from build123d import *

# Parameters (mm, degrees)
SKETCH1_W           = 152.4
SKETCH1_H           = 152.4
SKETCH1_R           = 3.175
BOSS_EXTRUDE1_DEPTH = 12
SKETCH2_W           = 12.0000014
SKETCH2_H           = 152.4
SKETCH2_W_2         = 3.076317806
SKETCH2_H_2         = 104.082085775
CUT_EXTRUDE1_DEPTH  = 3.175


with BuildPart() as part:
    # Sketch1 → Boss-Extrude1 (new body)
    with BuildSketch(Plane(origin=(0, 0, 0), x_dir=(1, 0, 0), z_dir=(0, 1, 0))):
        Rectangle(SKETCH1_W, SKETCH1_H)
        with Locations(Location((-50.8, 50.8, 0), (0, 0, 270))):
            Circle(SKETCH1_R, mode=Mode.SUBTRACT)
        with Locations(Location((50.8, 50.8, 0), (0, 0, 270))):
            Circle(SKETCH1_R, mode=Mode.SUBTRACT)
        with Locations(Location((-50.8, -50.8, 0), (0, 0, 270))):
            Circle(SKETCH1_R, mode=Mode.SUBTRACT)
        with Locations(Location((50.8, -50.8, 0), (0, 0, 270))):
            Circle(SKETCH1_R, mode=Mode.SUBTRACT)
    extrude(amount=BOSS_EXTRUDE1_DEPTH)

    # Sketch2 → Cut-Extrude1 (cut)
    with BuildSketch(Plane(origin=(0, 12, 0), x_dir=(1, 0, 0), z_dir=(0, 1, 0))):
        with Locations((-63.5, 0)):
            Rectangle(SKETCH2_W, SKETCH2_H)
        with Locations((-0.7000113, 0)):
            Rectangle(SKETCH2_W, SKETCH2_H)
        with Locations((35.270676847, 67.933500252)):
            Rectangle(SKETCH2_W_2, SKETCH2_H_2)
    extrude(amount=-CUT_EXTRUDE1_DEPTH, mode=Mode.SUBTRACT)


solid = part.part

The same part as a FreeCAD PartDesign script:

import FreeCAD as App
import Part
import Sketcher

V = App.Vector
Q = App.Units.Quantity


def add_polygon(sketch, points):
    """Adds a closed chain of lines whose ends are joined by coincident constraints."""
    first, n = sketch.GeometryCount, len(points)
    for a, b in zip(points, points[1:] + points[:1]):
        sketch.addGeometry(Part.LineSegment(App.Vector(*a, 0), App.Vector(*b, 0)), False)
    for i in range(n):
        sketch.addConstraint(Sketcher.Constraint("Coincident", first + i, 2, first + (i + 1) % n, 1))

doc = App.newDocument("Part")
body = doc.addObject("PartDesign::Body", "Body")

sketch1 = doc.addObject("Sketcher::SketchObject", "Sketch")
body.addObject(sketch1)
sketch1.AttachmentSupport = (doc.XZ_Plane, [""])
sketch1.MapMode = "FlatFace"
add_polygon(sketch1, [(-76.2, -76.2), (-76.2, 76.2), (76.2, 76.2), (76.2, -76.2)])
sketch1.addGeometry(Part.Circle(V(-50.8, 50.8, 0), V(0, 0, 1), 3.175), False)
sketch1.addGeometry(Part.Circle(V(50.8, 50.8, 0), V(0, 0, 1), 3.175), False)
sketch1.addGeometry(Part.Circle(V(-50.8, -50.8, 0), V(0, 0, 1), 3.175), False)
sketch1.addGeometry(Part.Circle(V(50.8, -50.8, 0), V(0, 0, 1), 3.175), False)
sketch1.addConstraint([
    Sketcher.Constraint("Vertical", 0),
    Sketcher.Constraint("Horizontal", 1),
    Sketcher.Constraint("Vertical", 2),
    Sketcher.Constraint("Horizontal", 3),
    Sketcher.Constraint("Equal", 4, 5),
    Sketcher.Constraint("Equal", 5, 6),
    Sketcher.Constraint("Equal", 6, 7),
    Sketcher.Constraint("Symmetric", 5, 3, 6, 3, -1, 1),
    Sketcher.Constraint("Symmetric", 4, 3, 7, 3, -1, 1),
    Sketcher.Constraint("Symmetric", 0, 2, 2, 2, -1, 1),
    Sketcher.Constraint("Symmetric", 4, 3, 5, 3, -2),
    Sketcher.Constraint("Equal", 3, 0),
    Sketcher.Constraint("Diameter", 4, Q("0.25 in")),
    Sketcher.Constraint("DistanceX", 1, 1, 1, 2, Q("6 in")),
    Sketcher.Constraint("DistanceX", 4, 3, -1, 1, Q("2 in")),
    Sketcher.Constraint("DistanceY", -1, 1, 4, 3, Q("2 in")),
])
pad1 = doc.addObject("PartDesign::Pad", "Pad")
body.addObject(pad1)
pad1.Profile = sketch1
pad1.Length = 12
pad1.Reversed = True

sketch2 = doc.addObject("Sketcher::SketchObject", "Sketch001")
body.addObject(sketch2)
sketch2.AttachmentSupport = (doc.XZ_Plane, [""])
sketch2.MapMode = "FlatFace"
sketch2.AttachmentOffset = App.Placement(V(0, 0, -12), App.Rotation())
add_polygon(sketch2, [(-69.500001, -76.2), (-69.500001, 76.2), (-57.499999, 76.2), (-57.499999, -76.2)])
add_polygon(sketch2, [(-6.700012, -76.2), (-6.700012, 76.2), (5.299989, 76.2), (5.299989, -76.2)])
add_polygon(sketch2, [(33.732518, -119.974543), (33.732518, -15.892457), (36.808836, -15.892457), (36.808836, -119.974543)])
sketch2.addConstraint([
    Sketcher.Constraint("Vertical", 0),
    Sketcher.Constraint("Horizontal", 1),
    Sketcher.Constraint("Vertical", 2),
    Sketcher.Constraint("Horizontal", 3),
    Sketcher.Constraint("Vertical", 4),
    Sketcher.Constraint("Horizontal", 5),
    Sketcher.Constraint("Vertical", 6),
    Sketcher.Constraint("Horizontal", 7),
    Sketcher.Constraint("Vertical", 8),
    Sketcher.Constraint("Horizontal", 9),
    Sketcher.Constraint("Vertical", 10),
    Sketcher.Constraint("Horizontal", 11),
    Sketcher.Constraint("Horizontal", 1, 2, 4, 2),
    Sketcher.Constraint("Horizontal", 3, 2, 6, 2),
    Sketcher.Constraint("Equal", 3, 5),
    Sketcher.Constraint("DistanceY", 0, 1, 0, 2, Q("6 in")),
    Sketcher.Constraint("DistanceY", -1, 1, 0, 2, Q("3 in")),
    Sketcher.Constraint("DistanceX", 1, 1, 1, 2, Q("12.000001 mm")),
    Sketcher.Constraint("DistanceX", 0, 2, -1, 1, Q("69.500001 mm")),
    Sketcher.Constraint("DistanceX", 9, 1, 9, 2, Q("3.076318 mm")),
    Sketcher.Constraint("DistanceY", 8, 1, 8, 2, Q("104.082086 mm")),
    Sketcher.Constraint("DistanceX", -1, 1, 5, 2, Q("5.299989 mm")),
    Sketcher.Constraint("DistanceX", 6, 2, 8, 2, Q("28.432529 mm")),
    Sketcher.Constraint("DistanceY", 8, 2, -1, 1, Q("15.892457 mm")),
])
pocket1 = doc.addObject("PartDesign::Pocket", "Pocket")
body.addObject(pocket1)
pocket1.Profile = sketch2
pocket1.Length = Q("0.125 in")
pocket1.Reversed = True

doc.recompute()
